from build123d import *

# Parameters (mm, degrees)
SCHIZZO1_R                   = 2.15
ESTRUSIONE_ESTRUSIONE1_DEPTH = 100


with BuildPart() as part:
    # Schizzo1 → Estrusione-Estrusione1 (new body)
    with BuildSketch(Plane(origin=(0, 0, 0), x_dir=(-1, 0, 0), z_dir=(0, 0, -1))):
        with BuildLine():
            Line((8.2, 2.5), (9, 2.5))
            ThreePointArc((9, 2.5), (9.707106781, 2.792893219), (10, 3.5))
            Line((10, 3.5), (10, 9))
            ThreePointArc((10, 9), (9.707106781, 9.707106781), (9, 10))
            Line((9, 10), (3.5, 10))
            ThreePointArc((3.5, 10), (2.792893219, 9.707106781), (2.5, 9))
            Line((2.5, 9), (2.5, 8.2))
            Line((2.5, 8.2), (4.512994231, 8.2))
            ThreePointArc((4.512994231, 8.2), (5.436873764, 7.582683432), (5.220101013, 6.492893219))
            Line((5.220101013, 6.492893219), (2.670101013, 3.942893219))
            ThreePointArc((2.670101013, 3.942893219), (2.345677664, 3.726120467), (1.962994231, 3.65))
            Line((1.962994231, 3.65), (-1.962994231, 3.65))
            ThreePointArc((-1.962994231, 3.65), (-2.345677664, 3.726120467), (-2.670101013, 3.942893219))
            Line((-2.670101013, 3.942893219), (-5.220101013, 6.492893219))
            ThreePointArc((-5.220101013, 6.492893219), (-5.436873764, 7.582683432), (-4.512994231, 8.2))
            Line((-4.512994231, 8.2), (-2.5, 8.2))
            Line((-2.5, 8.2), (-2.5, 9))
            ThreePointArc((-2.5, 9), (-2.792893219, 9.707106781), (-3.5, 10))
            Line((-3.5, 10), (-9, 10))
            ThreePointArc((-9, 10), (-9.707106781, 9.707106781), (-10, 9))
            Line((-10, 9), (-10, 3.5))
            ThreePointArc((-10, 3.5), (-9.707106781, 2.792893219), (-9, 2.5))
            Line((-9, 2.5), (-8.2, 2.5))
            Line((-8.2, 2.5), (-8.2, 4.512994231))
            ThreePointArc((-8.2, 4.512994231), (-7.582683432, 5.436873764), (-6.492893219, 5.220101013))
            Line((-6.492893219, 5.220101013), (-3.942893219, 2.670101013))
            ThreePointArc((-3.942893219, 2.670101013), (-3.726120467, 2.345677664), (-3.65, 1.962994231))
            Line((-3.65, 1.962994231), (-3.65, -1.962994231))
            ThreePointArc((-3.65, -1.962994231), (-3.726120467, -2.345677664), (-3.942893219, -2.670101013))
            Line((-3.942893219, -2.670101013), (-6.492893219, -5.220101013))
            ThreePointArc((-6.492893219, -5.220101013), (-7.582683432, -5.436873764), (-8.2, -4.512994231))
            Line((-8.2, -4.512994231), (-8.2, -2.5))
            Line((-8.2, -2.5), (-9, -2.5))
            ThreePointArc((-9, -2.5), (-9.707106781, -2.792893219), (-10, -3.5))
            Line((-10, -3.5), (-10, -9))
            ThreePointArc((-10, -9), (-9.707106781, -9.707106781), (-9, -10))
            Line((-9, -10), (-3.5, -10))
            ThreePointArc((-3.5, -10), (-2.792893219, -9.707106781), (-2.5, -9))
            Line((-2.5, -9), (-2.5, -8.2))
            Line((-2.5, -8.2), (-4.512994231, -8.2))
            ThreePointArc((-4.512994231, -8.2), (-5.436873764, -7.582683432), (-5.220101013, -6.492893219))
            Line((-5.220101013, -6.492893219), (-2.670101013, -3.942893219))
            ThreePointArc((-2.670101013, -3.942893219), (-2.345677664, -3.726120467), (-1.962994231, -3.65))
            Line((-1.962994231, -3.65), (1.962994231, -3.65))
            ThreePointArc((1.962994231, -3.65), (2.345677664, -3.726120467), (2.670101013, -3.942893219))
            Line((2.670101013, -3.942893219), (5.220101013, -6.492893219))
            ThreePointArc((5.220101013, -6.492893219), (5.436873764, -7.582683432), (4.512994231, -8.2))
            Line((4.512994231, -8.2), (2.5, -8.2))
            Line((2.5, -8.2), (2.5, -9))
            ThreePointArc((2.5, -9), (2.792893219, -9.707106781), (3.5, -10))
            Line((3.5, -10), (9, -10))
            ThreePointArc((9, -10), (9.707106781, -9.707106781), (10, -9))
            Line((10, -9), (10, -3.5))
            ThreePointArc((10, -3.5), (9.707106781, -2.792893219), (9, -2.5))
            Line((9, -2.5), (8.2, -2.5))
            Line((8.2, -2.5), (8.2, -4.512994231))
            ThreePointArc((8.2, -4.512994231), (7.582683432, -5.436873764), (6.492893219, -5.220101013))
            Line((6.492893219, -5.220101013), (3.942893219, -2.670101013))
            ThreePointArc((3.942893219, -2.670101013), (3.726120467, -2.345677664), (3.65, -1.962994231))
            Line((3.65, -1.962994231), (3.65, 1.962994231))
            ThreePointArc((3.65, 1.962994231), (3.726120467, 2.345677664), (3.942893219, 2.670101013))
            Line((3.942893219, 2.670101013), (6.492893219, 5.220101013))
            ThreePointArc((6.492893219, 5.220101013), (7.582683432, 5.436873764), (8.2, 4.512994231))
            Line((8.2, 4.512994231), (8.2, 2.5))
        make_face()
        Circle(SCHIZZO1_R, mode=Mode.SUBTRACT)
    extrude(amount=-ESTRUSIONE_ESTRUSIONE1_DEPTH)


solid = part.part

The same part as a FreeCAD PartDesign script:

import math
import FreeCAD as App
import Part
import Sketcher
from FreeCAD import Vector

doc = App.newDocument("Part")
body = doc.addObject("PartDesign::Body", "Body")

sketch1 = body.newObject("Sketcher::SketchObject", "Sketch")
sketch1.AttachmentSupport = (doc.getObject("XY_Plane"), [""])
sketch1.MapMode = "FlatFace"
sketch1.addGeometry([
    Part.LineSegment(Vector(-8.2, 2.5, 0), Vector(-9, 2.5, 0)),
    Part.ArcOfCircle(Part.Circle(Vector(-9, 3.5, 0), Vector(0, 0, 1), 1), math.radians(-180), math.radians(-90)),
    Part.LineSegment(Vector(-10, 3.5, 0), Vector(-10, 9, 0)),
    Part.ArcOfCircle(Part.Circle(Vector(-9, 9, 0), Vector(0, 0, 1), 1), math.radians(90), math.radians(180)),
    Part.LineSegment(Vector(-9, 10, 0), Vector(-3.5, 10, 0)),
    Part.ArcOfCircle(Part.Circle(Vector(-3.5, 9, 0), Vector(0, 0, 1), 1), math.radians(0), math.radians(90)),
    Part.LineSegment(Vector(-2.5, 9, 0), Vector(-2.5, 8.2, 0)),
    Part.LineSegment(Vector(-2.5, 8.2, 0), Vector(-4.512994, 8.2, 0)),
    Part.ArcOfCircle(Part.Circle(Vector(-4.512994, 7.2, 0), Vector(0, 0, 1), 1), math.radians(90), math.radians(225)),
    Part.LineSegment(Vector(-5.220101, 6.492893, 0), Vector(-2.670101, 3.942893, 0)),
    Part.ArcOfCircle(Part.Circle(Vector(-1.962994, 4.65, 0), Vector(0, 0, 1), 1), math.radians(-135), math.radians(-90)),
    Part.LineSegment(Vector(-1.962994, 3.65, 0), Vector(1.962994, 3.65, 0)),
    Part.ArcOfCircle(Part.Circle(Vector(1.962994, 4.65, 0), Vector(0, 0, 1), 1), math.radians(-90), math.radians(-45)),
    Part.LineSegment(Vector(2.670101, 3.942893, 0), Vector(5.220101, 6.492893, 0)),
    Part.ArcOfCircle(Part.Circle(Vector(4.512994, 7.2, 0), Vector(0, 0, 1), 1), math.radians(-45), math.radians(90)),
    Part.LineSegment(Vector(4.512994, 8.2, 0), Vector(2.5, 8.2, 0)),
    Part.LineSegment(Vector(2.5, 8.2, 0), Vector(2.5, 9, 0)),
    Part.ArcOfCircle(Part.Circle(Vector(3.5, 9, 0), Vector(0, 0, 1), 1), math.radians(90), math.radians(180)),
    Part.LineSegment(Vector(3.5, 10, 0), Vector(9, 10, 0)),
    Part.ArcOfCircle(Part.Circle(Vector(9, 9, 0), Vector(0, 0, 1), 1), math.radians(0), math.radians(90)),
    Part.LineSegment(Vector(10, 9, 0), Vector(10, 3.5, 0)),
    Part.ArcOfCircle(Part.Circle(Vector(9, 3.5, 0), Vector(0, 0, 1), 1), math.radians(-90), math.radians(0)),
    Part.LineSegment(Vector(9, 2.5, 0), Vector(8.2, 2.5, 0)),
    Part.LineSegment(Vector(8.2, 2.5, 0), Vector(8.2, 4.512994, 0)),
    Part.ArcOfCircle(Part.Circle(Vector(7.2, 4.512994, 0), Vector(0, 0, 1), 1), math.radians(0), math.radians(135)),
    Part.LineSegment(Vector(6.492893, 5.220101, 0), Vector(3.942893, 2.670101, 0)),
    Part.ArcOfCircle(Part.Circle(Vector(4.65, 1.962994, 0), Vector(0, 0, 1), 1), math.radians(135), math.radians(180)),
    Part.LineSegment(Vector(3.65, 1.962994, 0), Vector(3.65, -1.962994, 0)),
    Part.ArcOfCircle(Part.Circle(Vector(4.65, -1.962994, 0), Vector(0, 0, 1), 1), math.radians(180), math.radians(225)),
    Part.LineSegment(Vector(3.942893, -2.670101, 0), Vector(6.492893, -5.220101, 0)),
    Part.ArcOfCircle(Part.Circle(Vector(7.2, -4.512994, 0), Vector(0, 0, 1), 1), math.radians(-135), math.radians(0)),
    Part.LineSegment(Vector(8.2, -4.512994, 0), Vector(8.2, -2.5, 0)),
    Part.LineSegment(Vector(8.2, -2.5, 0), Vector(9, -2.5, 0)),
    Part.ArcOfCircle(Part.Circle(Vector(9, -3.5, 0), Vector(0, 0, 1), 1), math.radians(0), math.radians(90)),
    Part.LineSegment(Vector(10, -3.5, 0), Vector(10, -9, 0)),
    Part.ArcOfCircle(Part.Circle(Vector(9, -9, 0), Vector(0, 0, 1), 1), math.radians(-90), math.radians(0)),
    Part.LineSegment(Vector(9, -10, 0), Vector(3.5, -10, 0)),
    Part.ArcOfCircle(Part.Circle(Vector(3.5, -9, 0), Vector(0, 0, 1), 1), math.radians(-180), math.radians(-90)),
    Part.LineSegment(Vector(2.5, -9, 0), Vector(2.5, -8.2, 0)),
    Part.LineSegment(Vector(2.5, -8.2, 0), Vector(4.512994, -8.2, 0)),
    Part.ArcOfCircle(Part.Circle(Vector(4.512994, -7.2, 0), Vector(0, 0, 1), 1), math.radians(-90), math.radians(45)),
    Part.LineSegment(Vector(5.220101, -6.492893, 0), Vector(2.670101, -3.942893, 0)),
    Part.ArcOfCircle(Part.Circle(Vector(1.962994, -4.65, 0), Vector(0, 0, 1), 1), math.radians(45), math.radians(90)),
    Part.LineSegment(Vector(1.962994, -3.65, 0), Vector(-1.962994, -3.65, 0)),
    Part.ArcOfCircle(Part.Circle(Vector(-1.962994, -4.65, 0), Vector(0, 0, 1), 1), math.radians(90), math.radians(135)),
    Part.LineSegment(Vector(-2.670101, -3.942893, 0), Vector(-5.220101, -6.492893, 0)),
    Part.ArcOfCircle(Part.Circle(Vector(-4.512994, -7.2, 0), Vector(0, 0, 1), 1), math.radians(135), math.radians(270)),
    Part.LineSegment(Vector(-4.512994, -8.2, 0), Vector(-2.5, -8.2, 0)),
    Part.LineSegment(Vector(-2.5, -8.2, 0), Vector(-2.5, -9, 0)),
    Part.ArcOfCircle(Part.Circle(Vector(-3.5, -9, 0), Vector(0, 0, 1), 1), math.radians(-90), math.radians(0)),
    Part.LineSegment(Vector(-3.5, -10, 0), Vector(-9, -10, 0)),
    Part.ArcOfCircle(Part.Circle(Vector(-9, -9, 0), Vector(0, 0, 1), 1), math.radians(-180), math.radians(-90)),
    Part.LineSegment(Vector(-10, -9, 0), Vector(-10, -3.5, 0)),
    Part.ArcOfCircle(Part.Circle(Vector(-9, -3.5, 0), Vector(0, 0, 1), 1), math.radians(90), math.radians(180)),
    Part.LineSegment(Vector(-9, -2.5, 0), Vector(-8.2, -2.5, 0)),
    Part.LineSegment(Vector(-8.2, -2.5, 0), Vector(-8.2, -4.512994, 0)),
    Part.ArcOfCircle(Part.Circle(Vector(-7.2, -4.512994, 0), Vector(0, 0, 1), 1), math.radians(180), math.radians(315)),
    Part.LineSegment(Vector(-6.492893, -5.220101, 0), Vector(-3.942893, -2.670101, 0)),
    Part.ArcOfCircle(Part.Circle(Vector(-4.65, -1.962994, 0), Vector(0, 0, 1), 1), math.radians(-45), math.radians(0)),
    Part.LineSegment(Vector(-3.65, -1.962994, 0), Vector(-3.65, 1.962994, 0)),
    Part.ArcOfCircle(Part.Circle(Vector(-4.65, 1.962994, 0), Vector(0, 0, 1), 1), math.radians(0), math.radians(45)),
    Part.LineSegment(Vector(-3.942893, 2.670101, 0), Vector(-6.492893, 5.220101, 0)),
    Part.ArcOfCircle(Part.Circle(Vector(-7.2, 4.512994, 0), Vector(0, 0, 1), 1), math.radians(45), math.radians(180)),
    Part.LineSegment(Vector(-8.2, 4.512994, 0), Vector(-8.2, 2.5, 0)),
    Part.Circle(Vector(0, 0, 0), Vector(0, 0, 1), 2.15),
], False)
sketch1.addConstraint([
    Sketcher.Constraint("Tangent", 0, 2, 1, 2),
    Sketcher.Constraint("Tangent", 1, 1, 2, 1),
    Sketcher.Constraint("Tangent", 2, 2, 3, 2),
    Sketcher.Constraint("Tangent", 3, 1, 4, 1),
    Sketcher.Constraint("Tangent", 4, 2, 5, 2),
    Sketcher.Constraint("Tangent", 5, 1, 6, 1),
    Sketcher.Constraint("Coincident", 6, 2, 7, 1),
    Sketcher.Constraint("Tangent", 7, 2, 8, 1),
    Sketcher.Constraint("Tangent", 8, 2, 9, 1),
    Sketcher.Constraint("Tangent", 9, 2, 10, 1),
    Sketcher.Constraint("Tangent", 10, 2, 11, 1),
    Sketcher.Constraint("Tangent", 11, 2, 12, 1),
    Sketcher.Constraint("Tangent", 12, 2, 13, 1),
    Sketcher.Constraint("Tangent", 13, 2, 14, 1),
    Sketcher.Constraint("Tangent", 14, 2, 15, 1),
    Sketcher.Constraint("Coincident", 15, 2, 16, 1),
    Sketcher.Constraint("Tangent", 16, 2, 17, 2),
    Sketcher.Constraint("Tangent", 17, 1, 18, 1),
    Sketcher.Constraint("Tangent", 18, 2, 19, 2),
    Sketcher.Constraint("Tangent", 19, 1, 20, 1),
    Sketcher.Constraint("Tangent", 20, 2, 21, 2),
    Sketcher.Constraint("Tangent", 21, 1, 22, 1),
    Sketcher.Constraint("Coincident", 22, 2, 23, 1),
    Sketcher.Constraint("Tangent", 23, 2, 24, 1),
    Sketcher.Constraint("Tangent", 24, 2, 25, 1),
    Sketcher.Constraint("Tangent", 25, 2, 26, 1),
    Sketcher.Constraint("Tangent", 26, 2, 27, 1),
    Sketcher.Constraint("Tangent", 27, 2, 28, 1),
    Sketcher.Constraint("Tangent", 28, 2, 29, 1),
    Sketcher.Constraint("Tangent", 29, 2, 30, 1),
    Sketcher.Constraint("Tangent", 30, 2, 31, 1),
    Sketcher.Constraint("Coincident", 31, 2, 32, 1),
    Sketcher.Constraint("Tangent", 32, 2, 33, 2),
    Sketcher.Constraint("Tangent", 33, 1, 34, 1),
    Sketcher.Constraint("Tangent", 34, 2, 35, 2),
    Sketcher.Constraint("Tangent", 35, 1, 36, 1),
    Sketcher.Constraint("Tangent", 36, 2, 37, 2),
    Sketcher.Constraint("Tangent", 37, 1, 38, 1),
    Sketcher.Constraint("Coincident", 38, 2, 39, 1),
    Sketcher.Constraint("Tangent", 39, 2, 40, 1),
    Sketcher.Constraint("Tangent", 40, 2, 41, 1),
    Sketcher.Constraint("Tangent", 41, 2, 42, 1),
    Sketcher.Constraint("Tangent", 42, 2, 43, 1),
    Sketcher.Constraint("Tangent", 43, 2, 44, 1),
    Sketcher.Constraint("Tangent", 44, 2, 45, 1),
    Sketcher.Constraint("Tangent", 45, 2, 46, 1),
    Sketcher.Constraint("Tangent", 46, 2, 47, 1),
    Sketcher.Constraint("Coincident", 47, 2, 48, 1),
    Sketcher.Constraint("Tangent", 48, 2, 49, 2),
    Sketcher.Constraint("Tangent", 49, 1, 50, 1),
    Sketcher.Constraint("Tangent", 50, 2, 51, 2),
    Sketcher.Constraint("Tangent", 51, 1, 52, 1),
    Sketcher.Constraint("Tangent", 52, 2, 53, 2),
    Sketcher.Constraint("Tangent", 53, 1, 54, 1),
    Sketcher.Constraint("Coincident", 54, 2, 55, 1),
    Sketcher.Constraint("Tangent", 55, 2, 56, 1),
    Sketcher.Constraint("Tangent", 56, 2, 57, 1),
    Sketcher.Constraint("Tangent", 57, 2, 58, 1),
    Sketcher.Constraint("Tangent", 58, 2, 59, 1),
    Sketcher.Constraint("Tangent", 59, 2, 60, 1),
    Sketcher.Constraint("Tangent", 60, 2, 61, 1),
    Sketcher.Constraint("Tangent", 61, 2, 62, 1),
    Sketcher.Constraint("Tangent", 62, 2, 63, 1),
    Sketcher.Constraint("Coincident", 63, 2, 0, 1),
    Sketcher.Constraint("Horizontal", 0),
    Sketcher.Constraint("Vertical", 2),
    Sketcher.Constraint("Horizontal", 4),
    Sketcher.Constraint("Vertical", 6),
    Sketcher.Constraint("Horizontal", 7),
    Sketcher.Constraint("Horizontal", 11),
    Sketcher.Constraint("Horizontal", 15),
    Sketcher.Constraint("Vertical", 16),
    Sketcher.Constraint("Horizontal", 18),
    Sketcher.Constraint("Vertical", 20),
    Sketcher.Constraint("Horizontal", 22),
    Sketcher.Constraint("Vertical", 23),
    Sketcher.Constraint("Vertical", 27),
    Sketcher.Constraint("Vertical", 31),
    Sketcher.Constraint("Horizontal", 32),
    Sketcher.Constraint("Vertical", 34),
    Sketcher.Constraint("Horizontal", 36),
    Sketcher.Constraint("Vertical", 38),
    Sketcher.Constraint("Horizontal", 39),
    Sketcher.Constraint("Horizontal", 43),
    Sketcher.Constraint("Horizontal", 47),
    Sketcher.Constraint("Vertical", 48),
    Sketcher.Constraint("Horizontal", 50),
    Sketcher.Constraint("Vertical", 52),
    Sketcher.Constraint("Horizontal", 54),
    Sketcher.Constraint("Vertical", 55),
    Sketcher.Constraint("Vertical", 59),
    Sketcher.Constraint("Vertical", 63),
    Sketcher.Constraint("Coincident", 64, 3, -1, 1),
    Sketcher.Constraint("Equal", 1, 3),
    Sketcher.Constraint("Equal", 3, 5),
    Sketcher.Constraint("Equal", 5, 8),
    Sketcher.Constraint("Equal", 8, 10),
    Sketcher.Constraint("Equal", 10, 12),
    Sketcher.Constraint("Equal", 12, 14),
    Sketcher.Constraint("Equal", 14, 17),
    Sketcher.Constraint("Equal", 17, 19),
    Sketcher.Constraint("Equal", 19, 21),
    Sketcher.Constraint("Equal", 21, 24),
    Sketcher.Constraint("Equal", 24, 26),
    Sketcher.Constraint("Equal", 26, 28),
    Sketcher.Constraint("Equal", 28, 30),
    Sketcher.Constraint("Equal", 30, 33),
    Sketcher.Constraint("Equal", 33, 35),
    Sketcher.Constraint("Equal", 35, 37),
    Sketcher.Constraint("Equal", 37, 40),
    Sketcher.Constraint("Equal", 40, 42),
    Sketcher.Constraint("Equal", 42, 44),
    Sketcher.Constraint("Equal", 44, 46),
    Sketcher.Constraint("Equal", 46, 49),
    Sketcher.Constraint("Equal", 49, 51),
    Sketcher.Constraint("Equal", 51, 53),
    Sketcher.Constraint("Equal", 53, 56),
    Sketcher.Constraint("Equal", 56, 58),
    Sketcher.Constraint("Equal", 58, 60),
    Sketcher.Constraint("Equal", 60, 62),
    Sketcher.Constraint("Symmetric", 1, 3, 33, 3, -1, 1),
    Sketcher.Constraint("Symmetric", 5, 3, 37, 3, -1, 1),
    Sketcher.Constraint("Symmetric", 8, 3, 40, 3, -1, 1),
    Sketcher.Constraint("Symmetric", 10, 3, 42, 3, -1, 1),
    Sketcher.Constraint("Symmetric", 14, 3, 46, 3, -1, 1),
    Sketcher.Constraint("Symmetric", 17, 3, 49, 3, -1, 1),
    Sketcher.Constraint("Symmetric", 21, 3, 53, 3, -1, 1),
    Sketcher.Constraint("Symmetric", 24, 3, 56, 3, -1, 1),
    Sketcher.Constraint("Symmetric", 26, 3, 58, 3, -1, 1),
    Sketcher.Constraint("Symmetric", 30, 3, 62, 3, -1, 1),
    Sketcher.Constraint("Symmetric", 8, 3, 14, 3, -2),
    Sketcher.Constraint("Symmetric", 5, 3, 17, 3, -2),
    Sketcher.Constraint("Symmetric", 1, 3, 21, 3, -2),
    Sketcher.Constraint("Symmetric", 30, 3, 56, 3, -2),
    Sketcher.Constraint("Perpendicular", 9, 13),
    Sketcher.Constraint("Parallel", 13, 25),
    Sketcher.Constraint("Perpendicular", 25, 29),
    Sketcher.Constraint("Perpendicular", 41, 45),
    Sketcher.Constraint("Perpendicular", 57, 61),
    Sketcher.Constraint("Horizontal", 28, 3, 58, 3),
    Sketcher.Constraint("Equal", 50, 2),
    Sketcher.Constraint("Equal", 54, 6),
    Sketcher.Constraint("Equal", 47, 23),
    Sketcher.Constraint("Equal", 43, 27),
    Sketcher.Constraint("Equal", 13, 25),
    Sketcher.Constraint("Radius", 1, 1.0),
    Sketcher.Constraint("Diameter", 64, 4.3),
    Sketcher.Constraint("DistanceX", 0, 2, 0, 1, 0.8),
    Sketcher.Constraint("DistanceX", 4, 1, 4, 2, 5.5),
    Sketcher.Constraint("DistanceX", 1, 3, -1, 1, 9.0),
    Sketcher.Constraint("DistanceY", -1, 1, 10, 3, 4.65),
    Sketcher.Constraint("DistanceX", 11, 1, 11, 2, 3.925988),
])
pad1 = body.newObject("PartDesign::Pad", "Pad")
pad1.Profile = sketch1
pad1.Length = 100

doc.recompute()
